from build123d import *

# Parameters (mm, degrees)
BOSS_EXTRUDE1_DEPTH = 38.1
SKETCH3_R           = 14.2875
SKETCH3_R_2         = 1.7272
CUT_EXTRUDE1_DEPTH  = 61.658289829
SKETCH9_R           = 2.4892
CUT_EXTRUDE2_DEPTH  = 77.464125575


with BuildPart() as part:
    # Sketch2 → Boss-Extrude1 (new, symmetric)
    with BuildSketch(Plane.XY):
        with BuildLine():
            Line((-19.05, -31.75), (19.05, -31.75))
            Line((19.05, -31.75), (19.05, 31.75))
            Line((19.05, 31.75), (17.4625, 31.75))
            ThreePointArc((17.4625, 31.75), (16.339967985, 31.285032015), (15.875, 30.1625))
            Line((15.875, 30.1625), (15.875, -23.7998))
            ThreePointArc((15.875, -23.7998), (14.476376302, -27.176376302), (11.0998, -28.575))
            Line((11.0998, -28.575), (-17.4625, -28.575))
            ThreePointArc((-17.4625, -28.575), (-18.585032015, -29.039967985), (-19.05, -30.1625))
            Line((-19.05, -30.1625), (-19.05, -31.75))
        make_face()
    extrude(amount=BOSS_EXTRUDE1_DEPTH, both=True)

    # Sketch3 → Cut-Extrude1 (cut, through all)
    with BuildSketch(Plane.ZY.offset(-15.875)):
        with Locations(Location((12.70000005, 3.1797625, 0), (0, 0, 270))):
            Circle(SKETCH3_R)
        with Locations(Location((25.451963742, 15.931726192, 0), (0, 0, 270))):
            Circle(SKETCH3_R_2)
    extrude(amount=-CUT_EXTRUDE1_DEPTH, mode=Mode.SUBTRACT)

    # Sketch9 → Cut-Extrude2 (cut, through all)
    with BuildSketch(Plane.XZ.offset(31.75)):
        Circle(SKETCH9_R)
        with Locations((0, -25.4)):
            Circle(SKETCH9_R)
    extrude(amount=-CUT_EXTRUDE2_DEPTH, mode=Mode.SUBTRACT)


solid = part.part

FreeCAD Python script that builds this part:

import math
import FreeCAD as App
import Part
import Sketcher
Q = App.Units.Quantity

doc = App.newDocument("Part")
body = doc.addObject("PartDesign::Body", "Body")

# Sketch on XY plane
sketch1 = body.newObject("Sketcher::SketchObject", "Sketch")
sketch1.AttachmentSupport = (doc.getObject("XY_Plane"), [""])
sketch1.MapMode = "FlatFace"
sketch1.addGeometry([
    Part.LineSegment(App.Vector(-19.05, -31.75, 0), App.Vector(19.05, -31.75, 0)),  # 0
    Part.LineSegment(App.Vector(19.05, -31.75, 0), App.Vector(19.05, 31.75, 0)),  # 1
    Part.LineSegment(App.Vector(19.05, 31.75, 0), App.Vector(17.4625, 31.75, 0)),  # 2
    Part.ArcOfCircle(Part.Circle(App.Vector(17.4625, 30.1625, 0), App.Vector(0, 0, 1), 1.5875), math.radians(90), math.radians(180)),  # 3
    Part.LineSegment(App.Vector(15.875, 30.1625, 0), App.Vector(15.875, -23.7998, 0)),  # 4
    Part.ArcOfCircle(Part.Circle(App.Vector(11.0998, -23.7998, 0), App.Vector(0, 0, 1), 4.7752), math.radians(-90), math.radians(0)),  # 5
    Part.LineSegment(App.Vector(11.0998, -28.575, 0), App.Vector(-17.4625, -28.575, 0)),  # 6
    Part.ArcOfCircle(Part.Circle(App.Vector(-17.4625, -30.1625, 0), App.Vector(0, 0, 1), 1.5875), math.radians(90), math.radians(180)),  # 7
    Part.LineSegment(App.Vector(-19.05, -30.1625, 0), App.Vector(-19.05, -31.75, 0)),  # 8
], False)
sketch1.addConstraint([
    Sketcher.Constraint("Coincident", 0, 2, 1, 1),
    Sketcher.Constraint("Coincident", 1, 2, 2, 1),
    Sketcher.Constraint("Tangent", 2, 2, 3, 1),
    Sketcher.Constraint("Tangent", 3, 2, 4, 1),
    Sketcher.Constraint("Tangent", 4, 2, 5, 2),
    Sketcher.Constraint("Tangent", 5, 1, 6, 1),
    Sketcher.Constraint("Tangent", 6, 2, 7, 1),
    Sketcher.Constraint("Tangent", 7, 2, 8, 1),
    Sketcher.Constraint("Coincident", 8, 2, 0, 1),
    Sketcher.Constraint("Horizontal", 0),
    Sketcher.Constraint("Vertical", 1),
    Sketcher.Constraint("Horizontal", 2),
    Sketcher.Constraint("Vertical", 4),
    Sketcher.Constraint("Horizontal", 6),
    Sketcher.Constraint("Vertical", 8),
    Sketcher.Constraint("Equal", 3, 7),
    Sketcher.Constraint("Symmetric", 3, 3, 7, 3, -1, 1),
    Sketcher.Constraint("Symmetric", 1, 2, 8, 2, -1, 1),
    Sketcher.Constraint("DistanceX", 0, 1, 0, 2, Q("1.5 in")),
    Sketcher.Constraint("DistanceY", 1, 1, 1, 2, Q("2.5 in")),
    Sketcher.Constraint("Radius", 3, Q("0.0625 in")),
    Sketcher.Constraint("Radius", 5, Q("0.188 in")),
])
pad1 = body.newObject("PartDesign::Pad", "Pad")
pad1.Profile = sketch1
pad1.Length = Q("3 in")
pad1.Midplane = True

# Sketch on YZ plane
sketch2 = body.newObject("Sketcher::SketchObject", "Sketch001")
sketch2.AttachmentSupport = (doc.getObject("YZ_Plane"), [""])
sketch2.MapMode = "FlatFace"
sketch2.AttachmentOffset = App.Placement(App.Vector(0, 0, 0.625 * 25.4), App.Rotation())
sketch2.addGeometry([
    Part.Circle(App.Vector(3.179762, 12.7, 0), App.Vector(0, 0, 1), 14.2875),
    Part.Circle(App.Vector(15.931726, 25.451964, 0), App.Vector(0, 0, 1), 1.7272),
], False)
sketch2.addConstraint([
    Sketcher.Constraint("Diameter", 0, Q("1.125 in")),
    Sketcher.Constraint("Diameter", 1, Q("0.136 in")),
    Sketcher.Constraint("DistanceY", -1, 1, 0, 3, Q("0.5 in")),
    Sketcher.Constraint("DistanceX", -1, 1, 0, 3, Q("3.179762 mm")),
    Sketcher.Constraint("DistanceX", -1, 1, 1, 3, Q("15.931726 mm")),
    Sketcher.Constraint("DistanceY", -1, 1, 1, 3, Q("25.451964 mm")),
])
pocket1 = body.newObject("PartDesign::Pocket", "Pocket")
pocket1.Profile = sketch2
pocket1.Type = "ThroughAll"
pocket1.Reversed = True

# Sketch on XZ plane
sketch3 = body.newObject("Sketcher::SketchObject", "Sketch002")
sketch3.AttachmentSupport = (doc.getObject("XZ_Plane"), [""])
sketch3.MapMode = "FlatFace"
sketch3.AttachmentOffset = App.Placement(App.Vector(0, 0, 1.25 * 25.4), App.Rotation())
sketch3.addGeometry([
    Part.Circle(App.Vector(0, 0, 0), App.Vector(0, 0, 1), 2.4892),
    Part.Circle(App.Vector(0, -25.4, 0), App.Vector(0, 0, 1), 2.4892),
], False)
sketch3.addConstraint([
    Sketcher.Constraint("Coincident", 0, 3, -1, 1),
    Sketcher.Constraint("Equal", 0, 1),
    Sketcher.Constraint("PointOnObject", 1, 3, -2),
    Sketcher.Constraint("Diameter", 0, Q("0.196 in")),
    Sketcher.Constraint("DistanceY", 1, 3, -1, 1, Q("1 in")),
])
pocket2 = body.newObject("PartDesign::Pocket", "Pocket001")
pocket2.Profile = sketch3
pocket2.Type = "ThroughAll"

doc.recompute()
